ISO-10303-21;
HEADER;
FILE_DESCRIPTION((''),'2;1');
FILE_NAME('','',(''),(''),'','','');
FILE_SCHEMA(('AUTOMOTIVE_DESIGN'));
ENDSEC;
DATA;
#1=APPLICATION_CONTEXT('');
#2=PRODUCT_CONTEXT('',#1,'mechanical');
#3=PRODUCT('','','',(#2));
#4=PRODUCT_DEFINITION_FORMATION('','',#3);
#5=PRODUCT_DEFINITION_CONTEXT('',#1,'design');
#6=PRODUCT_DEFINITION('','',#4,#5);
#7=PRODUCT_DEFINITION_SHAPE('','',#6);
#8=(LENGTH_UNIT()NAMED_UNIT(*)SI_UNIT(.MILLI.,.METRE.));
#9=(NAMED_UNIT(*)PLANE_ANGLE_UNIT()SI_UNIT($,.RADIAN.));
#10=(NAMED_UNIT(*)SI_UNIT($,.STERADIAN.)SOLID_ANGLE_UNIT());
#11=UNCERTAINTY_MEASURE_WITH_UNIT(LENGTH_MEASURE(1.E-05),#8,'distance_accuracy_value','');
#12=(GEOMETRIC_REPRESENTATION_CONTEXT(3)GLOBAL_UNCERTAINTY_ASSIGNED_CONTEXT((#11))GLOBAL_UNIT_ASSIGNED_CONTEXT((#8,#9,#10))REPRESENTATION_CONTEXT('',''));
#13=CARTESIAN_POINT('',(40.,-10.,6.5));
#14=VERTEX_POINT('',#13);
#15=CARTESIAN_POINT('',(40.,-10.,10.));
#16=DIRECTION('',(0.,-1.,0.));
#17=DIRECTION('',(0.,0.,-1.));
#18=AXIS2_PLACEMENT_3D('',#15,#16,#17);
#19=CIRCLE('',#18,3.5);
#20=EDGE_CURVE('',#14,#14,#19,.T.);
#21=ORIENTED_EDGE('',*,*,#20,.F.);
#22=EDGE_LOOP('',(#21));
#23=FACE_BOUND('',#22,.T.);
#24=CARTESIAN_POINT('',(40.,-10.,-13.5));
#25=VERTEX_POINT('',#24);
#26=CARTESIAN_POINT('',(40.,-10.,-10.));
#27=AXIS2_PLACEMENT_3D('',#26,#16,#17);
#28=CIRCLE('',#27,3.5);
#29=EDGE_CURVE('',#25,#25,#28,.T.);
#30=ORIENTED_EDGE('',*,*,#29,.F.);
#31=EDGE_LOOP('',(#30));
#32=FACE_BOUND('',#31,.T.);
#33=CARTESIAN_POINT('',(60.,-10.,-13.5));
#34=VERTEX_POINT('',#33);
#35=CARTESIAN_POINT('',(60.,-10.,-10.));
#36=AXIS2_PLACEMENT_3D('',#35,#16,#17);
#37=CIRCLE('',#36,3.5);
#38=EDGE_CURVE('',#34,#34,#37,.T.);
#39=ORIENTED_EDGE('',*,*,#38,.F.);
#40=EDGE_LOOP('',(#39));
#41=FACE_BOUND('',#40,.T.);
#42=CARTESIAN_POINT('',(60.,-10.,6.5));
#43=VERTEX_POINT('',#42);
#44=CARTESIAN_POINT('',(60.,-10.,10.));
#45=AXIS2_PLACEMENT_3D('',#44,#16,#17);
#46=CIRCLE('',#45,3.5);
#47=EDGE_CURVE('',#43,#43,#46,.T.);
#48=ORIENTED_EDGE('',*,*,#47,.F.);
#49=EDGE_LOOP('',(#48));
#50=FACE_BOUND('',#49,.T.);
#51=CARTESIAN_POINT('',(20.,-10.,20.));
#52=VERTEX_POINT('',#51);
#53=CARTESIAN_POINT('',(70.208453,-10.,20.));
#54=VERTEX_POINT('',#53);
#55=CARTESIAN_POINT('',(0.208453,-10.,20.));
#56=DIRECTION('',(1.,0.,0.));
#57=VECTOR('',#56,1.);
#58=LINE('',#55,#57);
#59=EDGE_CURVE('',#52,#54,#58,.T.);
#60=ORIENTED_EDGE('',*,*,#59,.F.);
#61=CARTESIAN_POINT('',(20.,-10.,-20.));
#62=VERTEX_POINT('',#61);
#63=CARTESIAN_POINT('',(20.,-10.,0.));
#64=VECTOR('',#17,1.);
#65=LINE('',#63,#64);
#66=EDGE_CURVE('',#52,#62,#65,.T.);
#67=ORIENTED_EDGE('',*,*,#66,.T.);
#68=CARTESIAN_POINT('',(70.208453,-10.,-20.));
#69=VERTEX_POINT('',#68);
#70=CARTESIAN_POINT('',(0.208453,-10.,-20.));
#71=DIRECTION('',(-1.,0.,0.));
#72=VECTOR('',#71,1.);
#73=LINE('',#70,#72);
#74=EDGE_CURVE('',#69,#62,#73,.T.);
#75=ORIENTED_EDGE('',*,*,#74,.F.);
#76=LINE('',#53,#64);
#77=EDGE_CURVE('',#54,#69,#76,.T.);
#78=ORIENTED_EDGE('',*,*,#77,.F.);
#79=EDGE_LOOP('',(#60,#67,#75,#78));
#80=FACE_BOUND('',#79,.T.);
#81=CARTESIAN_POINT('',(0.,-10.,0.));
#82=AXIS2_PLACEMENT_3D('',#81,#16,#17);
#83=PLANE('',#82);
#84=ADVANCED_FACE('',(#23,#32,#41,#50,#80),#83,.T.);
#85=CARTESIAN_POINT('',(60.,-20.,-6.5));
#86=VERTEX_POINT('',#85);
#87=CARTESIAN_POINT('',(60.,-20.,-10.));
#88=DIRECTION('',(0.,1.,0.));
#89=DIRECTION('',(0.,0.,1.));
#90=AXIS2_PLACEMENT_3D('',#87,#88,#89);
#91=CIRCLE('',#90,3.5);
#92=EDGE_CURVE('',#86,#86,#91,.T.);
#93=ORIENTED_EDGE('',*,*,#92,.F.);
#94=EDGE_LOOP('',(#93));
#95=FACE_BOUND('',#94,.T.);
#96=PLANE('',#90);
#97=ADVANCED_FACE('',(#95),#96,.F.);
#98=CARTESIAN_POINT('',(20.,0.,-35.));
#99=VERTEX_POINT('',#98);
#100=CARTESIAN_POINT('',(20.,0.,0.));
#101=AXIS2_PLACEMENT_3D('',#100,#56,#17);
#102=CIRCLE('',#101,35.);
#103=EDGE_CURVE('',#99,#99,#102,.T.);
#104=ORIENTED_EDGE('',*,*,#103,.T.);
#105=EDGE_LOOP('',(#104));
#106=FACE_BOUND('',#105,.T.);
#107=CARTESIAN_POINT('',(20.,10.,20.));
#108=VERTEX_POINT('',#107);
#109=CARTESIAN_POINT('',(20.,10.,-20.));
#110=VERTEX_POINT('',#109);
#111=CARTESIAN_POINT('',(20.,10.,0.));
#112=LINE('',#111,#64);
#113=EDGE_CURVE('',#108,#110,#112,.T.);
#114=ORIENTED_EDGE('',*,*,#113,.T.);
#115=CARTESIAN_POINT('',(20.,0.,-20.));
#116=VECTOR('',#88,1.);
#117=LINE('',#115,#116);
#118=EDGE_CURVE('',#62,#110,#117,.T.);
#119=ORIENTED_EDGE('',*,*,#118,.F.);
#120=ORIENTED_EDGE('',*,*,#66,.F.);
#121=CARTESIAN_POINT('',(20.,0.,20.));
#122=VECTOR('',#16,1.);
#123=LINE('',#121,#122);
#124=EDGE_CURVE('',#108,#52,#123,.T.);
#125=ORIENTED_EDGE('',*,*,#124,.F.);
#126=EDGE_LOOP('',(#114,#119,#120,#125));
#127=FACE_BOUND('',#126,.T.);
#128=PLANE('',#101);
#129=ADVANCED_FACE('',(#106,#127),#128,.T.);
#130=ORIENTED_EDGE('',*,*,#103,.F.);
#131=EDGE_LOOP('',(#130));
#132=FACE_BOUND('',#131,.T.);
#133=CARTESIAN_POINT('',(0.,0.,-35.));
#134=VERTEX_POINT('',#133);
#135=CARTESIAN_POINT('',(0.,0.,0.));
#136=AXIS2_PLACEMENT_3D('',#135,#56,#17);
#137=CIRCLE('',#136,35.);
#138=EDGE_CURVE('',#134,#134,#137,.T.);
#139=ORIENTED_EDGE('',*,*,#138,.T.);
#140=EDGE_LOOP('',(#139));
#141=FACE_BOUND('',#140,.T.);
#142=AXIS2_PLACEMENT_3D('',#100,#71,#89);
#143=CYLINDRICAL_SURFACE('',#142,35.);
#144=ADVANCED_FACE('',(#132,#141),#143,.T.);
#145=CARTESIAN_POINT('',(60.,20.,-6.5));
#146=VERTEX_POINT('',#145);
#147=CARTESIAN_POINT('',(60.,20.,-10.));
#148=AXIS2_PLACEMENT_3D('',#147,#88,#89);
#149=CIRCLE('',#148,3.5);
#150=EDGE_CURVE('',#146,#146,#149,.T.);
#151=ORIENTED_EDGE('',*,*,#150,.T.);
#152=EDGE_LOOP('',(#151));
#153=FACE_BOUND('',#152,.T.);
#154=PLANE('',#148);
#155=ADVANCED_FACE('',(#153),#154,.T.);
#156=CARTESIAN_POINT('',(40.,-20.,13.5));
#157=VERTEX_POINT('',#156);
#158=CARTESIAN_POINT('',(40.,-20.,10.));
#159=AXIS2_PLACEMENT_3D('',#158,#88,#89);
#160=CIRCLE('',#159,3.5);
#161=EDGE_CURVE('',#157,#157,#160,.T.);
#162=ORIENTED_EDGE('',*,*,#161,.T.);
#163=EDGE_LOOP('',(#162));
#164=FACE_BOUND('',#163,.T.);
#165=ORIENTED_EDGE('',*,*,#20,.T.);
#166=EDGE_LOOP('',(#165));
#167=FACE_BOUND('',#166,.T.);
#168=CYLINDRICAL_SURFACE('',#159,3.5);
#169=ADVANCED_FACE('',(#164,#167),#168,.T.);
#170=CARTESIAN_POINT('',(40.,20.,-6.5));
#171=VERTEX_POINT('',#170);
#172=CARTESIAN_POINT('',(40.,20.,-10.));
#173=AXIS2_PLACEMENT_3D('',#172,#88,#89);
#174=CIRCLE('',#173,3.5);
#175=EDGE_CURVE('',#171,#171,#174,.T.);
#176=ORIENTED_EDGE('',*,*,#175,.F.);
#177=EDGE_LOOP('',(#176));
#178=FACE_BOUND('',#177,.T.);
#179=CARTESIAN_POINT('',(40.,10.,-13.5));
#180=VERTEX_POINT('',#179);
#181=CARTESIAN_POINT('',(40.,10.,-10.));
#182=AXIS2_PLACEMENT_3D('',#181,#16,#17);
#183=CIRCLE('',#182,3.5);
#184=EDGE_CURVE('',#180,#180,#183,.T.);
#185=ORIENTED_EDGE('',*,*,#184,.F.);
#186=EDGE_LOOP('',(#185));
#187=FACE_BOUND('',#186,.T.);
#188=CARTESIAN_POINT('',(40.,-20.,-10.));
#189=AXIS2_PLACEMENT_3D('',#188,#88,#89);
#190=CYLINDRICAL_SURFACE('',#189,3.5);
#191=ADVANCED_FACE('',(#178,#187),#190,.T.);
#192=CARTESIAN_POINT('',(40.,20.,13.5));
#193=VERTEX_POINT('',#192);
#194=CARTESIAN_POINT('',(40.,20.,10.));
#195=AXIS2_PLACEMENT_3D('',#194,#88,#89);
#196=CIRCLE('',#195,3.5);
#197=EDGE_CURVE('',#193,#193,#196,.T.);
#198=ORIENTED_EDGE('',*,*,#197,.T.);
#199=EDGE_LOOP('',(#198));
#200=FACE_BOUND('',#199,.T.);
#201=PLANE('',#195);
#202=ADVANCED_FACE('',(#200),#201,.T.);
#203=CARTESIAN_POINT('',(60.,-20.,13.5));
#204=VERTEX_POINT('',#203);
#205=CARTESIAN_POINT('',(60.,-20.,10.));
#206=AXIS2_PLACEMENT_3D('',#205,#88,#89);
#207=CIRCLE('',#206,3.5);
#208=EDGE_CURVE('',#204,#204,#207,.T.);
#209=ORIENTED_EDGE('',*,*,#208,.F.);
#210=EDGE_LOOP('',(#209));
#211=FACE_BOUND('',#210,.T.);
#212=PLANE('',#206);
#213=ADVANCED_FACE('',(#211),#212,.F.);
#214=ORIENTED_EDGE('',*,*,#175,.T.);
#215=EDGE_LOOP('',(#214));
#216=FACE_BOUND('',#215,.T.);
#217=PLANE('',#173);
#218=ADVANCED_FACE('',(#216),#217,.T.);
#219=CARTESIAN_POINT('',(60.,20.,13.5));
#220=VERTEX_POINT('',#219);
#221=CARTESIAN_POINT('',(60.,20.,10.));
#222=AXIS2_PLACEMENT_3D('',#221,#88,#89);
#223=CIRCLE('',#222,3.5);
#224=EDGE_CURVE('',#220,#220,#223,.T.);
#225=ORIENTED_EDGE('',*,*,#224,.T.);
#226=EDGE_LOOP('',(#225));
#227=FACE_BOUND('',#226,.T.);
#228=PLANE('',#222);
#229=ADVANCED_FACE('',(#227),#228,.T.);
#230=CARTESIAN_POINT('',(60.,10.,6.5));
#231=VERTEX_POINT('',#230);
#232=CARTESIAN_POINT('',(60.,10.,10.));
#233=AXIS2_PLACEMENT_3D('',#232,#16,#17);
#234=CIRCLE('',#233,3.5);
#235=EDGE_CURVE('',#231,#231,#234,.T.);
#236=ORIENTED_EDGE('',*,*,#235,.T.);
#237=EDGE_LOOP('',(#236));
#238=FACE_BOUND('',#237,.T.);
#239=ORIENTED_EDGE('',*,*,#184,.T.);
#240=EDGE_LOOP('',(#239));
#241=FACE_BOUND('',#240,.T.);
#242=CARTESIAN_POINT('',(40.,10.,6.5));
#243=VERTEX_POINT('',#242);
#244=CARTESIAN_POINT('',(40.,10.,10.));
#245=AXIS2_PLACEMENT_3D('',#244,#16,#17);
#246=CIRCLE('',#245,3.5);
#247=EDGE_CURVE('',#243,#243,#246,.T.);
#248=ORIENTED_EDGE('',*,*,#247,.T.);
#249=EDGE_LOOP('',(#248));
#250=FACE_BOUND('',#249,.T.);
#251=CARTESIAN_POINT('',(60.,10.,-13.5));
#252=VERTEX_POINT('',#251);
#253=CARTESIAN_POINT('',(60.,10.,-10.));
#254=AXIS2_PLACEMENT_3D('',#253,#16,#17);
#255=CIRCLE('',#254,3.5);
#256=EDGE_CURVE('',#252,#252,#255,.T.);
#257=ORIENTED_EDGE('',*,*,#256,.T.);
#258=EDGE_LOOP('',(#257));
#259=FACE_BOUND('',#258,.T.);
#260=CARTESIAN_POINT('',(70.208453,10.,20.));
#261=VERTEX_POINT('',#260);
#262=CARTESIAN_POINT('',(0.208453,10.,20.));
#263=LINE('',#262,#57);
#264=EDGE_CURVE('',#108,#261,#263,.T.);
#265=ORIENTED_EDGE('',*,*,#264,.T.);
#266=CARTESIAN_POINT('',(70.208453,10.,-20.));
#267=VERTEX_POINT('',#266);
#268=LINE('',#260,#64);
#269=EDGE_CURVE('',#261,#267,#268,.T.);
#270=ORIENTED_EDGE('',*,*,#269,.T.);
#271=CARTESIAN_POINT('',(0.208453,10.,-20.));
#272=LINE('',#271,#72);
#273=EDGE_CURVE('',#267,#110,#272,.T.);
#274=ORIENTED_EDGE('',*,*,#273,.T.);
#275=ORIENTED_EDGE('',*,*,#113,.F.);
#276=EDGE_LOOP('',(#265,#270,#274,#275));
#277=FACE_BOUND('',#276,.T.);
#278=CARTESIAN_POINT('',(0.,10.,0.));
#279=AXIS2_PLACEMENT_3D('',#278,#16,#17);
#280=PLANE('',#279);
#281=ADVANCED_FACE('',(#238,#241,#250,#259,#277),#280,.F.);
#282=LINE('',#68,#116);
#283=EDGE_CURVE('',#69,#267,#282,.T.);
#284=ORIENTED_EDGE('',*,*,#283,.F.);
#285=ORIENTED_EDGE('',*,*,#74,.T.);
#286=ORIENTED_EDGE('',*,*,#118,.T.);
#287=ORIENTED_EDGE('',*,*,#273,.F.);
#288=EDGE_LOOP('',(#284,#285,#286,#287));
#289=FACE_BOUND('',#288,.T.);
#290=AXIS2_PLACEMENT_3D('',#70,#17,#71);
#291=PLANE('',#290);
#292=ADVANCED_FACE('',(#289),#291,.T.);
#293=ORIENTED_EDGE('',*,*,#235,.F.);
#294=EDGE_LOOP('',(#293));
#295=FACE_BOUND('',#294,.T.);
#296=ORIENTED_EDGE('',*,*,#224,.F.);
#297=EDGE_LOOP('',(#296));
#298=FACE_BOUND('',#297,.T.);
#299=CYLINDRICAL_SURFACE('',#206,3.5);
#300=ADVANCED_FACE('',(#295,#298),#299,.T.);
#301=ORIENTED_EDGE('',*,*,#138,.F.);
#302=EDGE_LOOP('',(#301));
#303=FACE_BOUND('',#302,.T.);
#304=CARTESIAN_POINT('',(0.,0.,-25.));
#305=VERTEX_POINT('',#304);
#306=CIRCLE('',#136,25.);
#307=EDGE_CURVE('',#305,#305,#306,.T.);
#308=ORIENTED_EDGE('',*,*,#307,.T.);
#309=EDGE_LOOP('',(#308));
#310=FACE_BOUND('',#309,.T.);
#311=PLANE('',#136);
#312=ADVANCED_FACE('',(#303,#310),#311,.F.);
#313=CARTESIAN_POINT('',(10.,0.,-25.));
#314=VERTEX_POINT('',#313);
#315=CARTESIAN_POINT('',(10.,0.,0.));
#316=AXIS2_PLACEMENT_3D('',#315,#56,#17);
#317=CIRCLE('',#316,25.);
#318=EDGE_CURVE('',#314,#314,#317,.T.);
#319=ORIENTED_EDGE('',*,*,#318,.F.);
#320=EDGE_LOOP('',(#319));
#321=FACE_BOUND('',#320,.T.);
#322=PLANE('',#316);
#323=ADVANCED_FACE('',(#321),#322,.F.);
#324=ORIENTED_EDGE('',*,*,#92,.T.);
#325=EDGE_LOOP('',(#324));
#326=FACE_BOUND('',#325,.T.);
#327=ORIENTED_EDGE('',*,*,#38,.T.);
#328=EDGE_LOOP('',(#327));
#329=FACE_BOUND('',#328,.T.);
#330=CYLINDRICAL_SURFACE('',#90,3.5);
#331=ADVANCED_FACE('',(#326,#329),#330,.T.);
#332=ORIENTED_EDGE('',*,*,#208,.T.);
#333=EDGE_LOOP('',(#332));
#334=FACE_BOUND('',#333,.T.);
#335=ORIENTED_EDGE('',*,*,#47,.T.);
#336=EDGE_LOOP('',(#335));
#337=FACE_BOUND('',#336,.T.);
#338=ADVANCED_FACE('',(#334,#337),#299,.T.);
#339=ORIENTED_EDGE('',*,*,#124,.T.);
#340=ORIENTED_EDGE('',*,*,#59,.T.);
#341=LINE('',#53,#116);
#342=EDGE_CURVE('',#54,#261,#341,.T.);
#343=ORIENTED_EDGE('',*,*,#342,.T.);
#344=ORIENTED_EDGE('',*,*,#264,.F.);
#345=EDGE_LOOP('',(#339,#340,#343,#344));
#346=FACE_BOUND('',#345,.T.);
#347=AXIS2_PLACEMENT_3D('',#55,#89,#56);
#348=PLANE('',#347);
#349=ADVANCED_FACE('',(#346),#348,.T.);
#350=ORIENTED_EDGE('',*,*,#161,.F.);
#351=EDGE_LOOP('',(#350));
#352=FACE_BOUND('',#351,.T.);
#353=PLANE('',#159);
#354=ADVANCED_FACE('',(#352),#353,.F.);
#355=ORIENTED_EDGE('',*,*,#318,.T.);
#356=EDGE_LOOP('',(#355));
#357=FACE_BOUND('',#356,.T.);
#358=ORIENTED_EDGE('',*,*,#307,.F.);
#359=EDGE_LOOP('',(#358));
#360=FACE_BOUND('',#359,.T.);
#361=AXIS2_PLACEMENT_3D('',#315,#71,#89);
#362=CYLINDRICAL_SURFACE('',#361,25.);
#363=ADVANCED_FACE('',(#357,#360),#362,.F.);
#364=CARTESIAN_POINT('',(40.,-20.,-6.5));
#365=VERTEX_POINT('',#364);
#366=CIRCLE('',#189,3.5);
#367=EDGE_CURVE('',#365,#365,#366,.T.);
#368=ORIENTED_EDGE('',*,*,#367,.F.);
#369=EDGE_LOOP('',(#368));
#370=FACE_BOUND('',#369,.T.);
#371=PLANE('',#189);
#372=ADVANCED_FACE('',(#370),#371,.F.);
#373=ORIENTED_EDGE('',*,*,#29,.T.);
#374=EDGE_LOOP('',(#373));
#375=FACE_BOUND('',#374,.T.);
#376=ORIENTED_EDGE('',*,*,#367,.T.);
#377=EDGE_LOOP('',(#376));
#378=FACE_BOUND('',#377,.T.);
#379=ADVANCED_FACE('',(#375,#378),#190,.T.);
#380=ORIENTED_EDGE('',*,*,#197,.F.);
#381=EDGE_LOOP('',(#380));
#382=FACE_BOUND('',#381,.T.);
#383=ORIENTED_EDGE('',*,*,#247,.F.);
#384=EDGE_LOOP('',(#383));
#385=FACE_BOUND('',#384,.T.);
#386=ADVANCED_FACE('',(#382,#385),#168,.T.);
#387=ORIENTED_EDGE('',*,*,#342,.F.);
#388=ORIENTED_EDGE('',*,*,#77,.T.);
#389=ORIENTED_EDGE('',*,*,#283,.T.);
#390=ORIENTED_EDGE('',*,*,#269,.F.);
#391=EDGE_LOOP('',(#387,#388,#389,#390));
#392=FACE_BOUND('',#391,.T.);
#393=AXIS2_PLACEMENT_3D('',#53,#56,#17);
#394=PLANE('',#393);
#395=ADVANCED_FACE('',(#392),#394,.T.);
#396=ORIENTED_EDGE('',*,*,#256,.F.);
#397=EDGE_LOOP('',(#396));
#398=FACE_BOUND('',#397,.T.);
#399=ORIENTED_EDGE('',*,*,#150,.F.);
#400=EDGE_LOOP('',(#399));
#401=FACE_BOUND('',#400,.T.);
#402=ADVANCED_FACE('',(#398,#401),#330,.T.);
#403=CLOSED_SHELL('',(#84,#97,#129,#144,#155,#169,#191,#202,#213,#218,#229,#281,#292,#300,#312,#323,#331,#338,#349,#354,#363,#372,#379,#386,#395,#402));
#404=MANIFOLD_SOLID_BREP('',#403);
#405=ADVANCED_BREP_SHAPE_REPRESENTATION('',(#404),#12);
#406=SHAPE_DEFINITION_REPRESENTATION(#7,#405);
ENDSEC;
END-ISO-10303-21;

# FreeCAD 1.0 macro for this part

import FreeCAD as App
import Part
import Sketcher

V = App.Vector
Q = App.Units.Quantity

doc = App.newDocument("Part")
body = doc.addObject("PartDesign::Body", "Body")

# Sketch on YZ plane
sketch1 = body.newObject("Sketcher::SketchObject", "Sketch")
sketch1.AttachmentSupport = (doc.getObject("YZ_Plane"), [""])
sketch1.MapMode = "FlatFace"
sketch1.addGeometry(Part.Circle(V(0, 0, 0), V(0, 0, 1), 35), False)
sketch1.addConstraint(Sketcher.Constraint("Coincident", 0, 3, -1, 1))
sketch1.addConstraint(Sketcher.Constraint("Diameter", 0, Q("70 mm")))
pad1 = body.newObject("PartDesign::Pad", "Pad")
pad1.Profile = sketch1
pad1.Length = 20

# Sketch on YZ plane
sketch2 = body.newObject("Sketcher::SketchObject", "Sketch001")
sketch2.AttachmentSupport = (doc.getObject("YZ_Plane"), [""])
sketch2.MapMode = "FlatFace"
sketch2.addGeometry(Part.Circle(V(0, 0, 0), V(0, 0, 1), 25), False)
sketch2.addConstraint(Sketcher.Constraint("Coincident", 0, 3, -1, 1))
sketch2.addConstraint(Sketcher.Constraint("Diameter", 0, Q("50 mm")))
pocket1 = body.newObject("PartDesign::Pocket", "Pocket")
pocket1.Profile = sketch2
pocket1.Length = 10
pocket1.Reversed = True

# Sketch on XZ plane
sketch3 = body.newObject("Sketcher::SketchObject", "Sketch002")
sketch3.AttachmentSupport = (doc.getObject("XZ_Plane"), [""])
sketch3.MapMode = "FlatFace"
sketch3.addGeometry(Part.LineSegment(V(0, -20, 0), V(0, 20, 0)), False)
sketch3.addGeometry(Part.LineSegment(V(0, 20, 0), V(70, 20, 0)), False)
sketch3.addGeometry(Part.LineSegment(V(70, 20, 0), V(70, -20, 0)), False)
sketch3.addGeometry(Part.LineSegment(V(70, -20, 0), V(0, -20, 0)), False)
sketch3.addConstraint(Sketcher.Constraint("Coincident", 0, 2, 1, 1))
sketch3.addConstraint(Sketcher.Constraint("Coincident", 1, 2, 2, 1))
sketch3.addConstraint(Sketcher.Constraint("Coincident", 2, 2, 3, 1))
sketch3.addConstraint(Sketcher.Constraint("Coincident", 3, 2, 0, 1))
sketch3.addConstraint(Sketcher.Constraint("Vertical", 0))
sketch3.addConstraint(Sketcher.Constraint("Horizontal", 1))
sketch3.addConstraint(Sketcher.Constraint("Vertical", 2))
sketch3.addConstraint(Sketcher.Constraint("Horizontal", 3))
sketch3.addConstraint(Sketcher.Constraint("DistanceX", 1, 1, 1, 2, Q("70 mm")))
sketch3.addConstraint(Sketcher.Constraint("DistanceY", 0, 1, 0, 2, Q("40 mm")))
sketch3.addConstraint(Sketcher.Constraint("DistanceY", -1, 1, 0, 2, Q("20 mm")))
sketch3.addConstraint(Sketcher.Constraint("DistanceX", -1, 1, 0, 2, Q("0.208453 mm")))
pad2 = body.newObject("PartDesign::Pad", "Pad001")
pad2.Profile = sketch3
pad2.Type = "TwoLengths"
pad2.Length = 10
pad2.Length2 = 10
pad2.Reversed = True

# Sketch on XZ plane
sketch4 = body.newObject("Sketcher::SketchObject", "Sketch003")
sketch4.AttachmentSupport = (doc.getObject("XZ_Plane"), [""])
sketch4.MapMode = "FlatFace"
sketch4.addGeometry(Part.Circle(V(40, 10, 0), V(0, 0, 1), 3.5), False)
sketch4.addGeometry(Part.Circle(V(40, -10, 0), V(0, 0, 1), 3.5), False)
sketch4.addGeometry(Part.Circle(V(60, -10, 0), V(0, 0, 1), 3.5), False)
sketch4.addGeometry(Part.Circle(V(60, 10, 0), V(0, 0, 1), 3.5), False)
sketch4.addConstraint(Sketcher.Constraint("Equal", 0, 1))
sketch4.addConstraint(Sketcher.Constraint("Equal", 1, 2))
sketch4.addConstraint(Sketcher.Constraint("Equal", 2, 3))
sketch4.addConstraint(Sketcher.Constraint("Symmetric", 0, 3, 1, 3, -1))
sketch4.addConstraint(Sketcher.Constraint("Symmetric", 2, 3, 3, 3, -1))
sketch4.addConstraint(Sketcher.Constraint("Horizontal", 1, 3, 2, 3))
sketch4.addConstraint(Sketcher.Constraint("Diameter", 0, Q("7 mm")))
sketch4.addConstraint(Sketcher.Constraint("DistanceX", -1, 1, 0, 3, Q("40 mm")))
sketch4.addConstraint(Sketcher.Constraint("DistanceY", -1, 1, 0, 3, Q("10 mm")))
sketch4.addConstraint(Sketcher.Constraint("DistanceX", -1, 1, 2, 3, Q("60 mm")))
pad3 = body.newObject("PartDesign::Pad", "Pad002")
pad3.Profile = sketch4
pad3.Type = "TwoLengths"
pad3.Length = 20
pad3.Length2 = 20
pad3.Reversed = True

# Sketch on YZ plane
sketch5 = body.newObject("Sketcher::SketchObject", "Sketch004")
sketch5.AttachmentSupport = (doc.getObject("YZ_Plane"), [""])
sketch5.MapMode = "FlatFace"
sketch5.AttachmentOffset = App.Placement(V(0, 0, -17), App.Rotation())
sketch5.addGeometry(Part.Circle(V(0, 0, 0), V(0, 0, 1), 25), False)
sketch5.addConstraint(Sketcher.Constraint("Coincident", 0, 3, -1, 1))
sketch5.addConstraint(Sketcher.Constraint("Diameter", 0, Q("50 mm")))
pocket2 = body.newObject("PartDesign::Pocket", "Pocket001")
pocket2.Profile = sketch5
pocket2.Length = 27
pocket2.Reversed = True

doc.recompute()
